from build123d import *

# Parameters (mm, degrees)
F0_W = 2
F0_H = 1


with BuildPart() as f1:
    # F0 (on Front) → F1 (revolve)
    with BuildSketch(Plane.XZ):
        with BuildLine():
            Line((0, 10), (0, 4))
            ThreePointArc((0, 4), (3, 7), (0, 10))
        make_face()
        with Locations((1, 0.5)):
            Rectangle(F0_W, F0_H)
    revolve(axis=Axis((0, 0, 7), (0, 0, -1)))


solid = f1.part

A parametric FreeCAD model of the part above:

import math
import FreeCAD as App
import Part
import Sketcher

V = App.Vector
Q = App.Units.Quantity

doc = App.newDocument("Part")
params = doc.addObject("Spreadsheet::Sheet", "Params")
for row, (alias, value) in enumerate([
    ("sketch1_radius", "3 mm"),
    ("sketch1_width", "2 mm"),
    ("sketch1_height", "1 mm"),
    ("revolution_angle", "360 deg"),
], start=1):
    params.set(f"A{row}", alias)
    params.set(f"B{row}", "=" + value)
    params.setAlias(f"B{row}", alias)

body = doc.addObject("PartDesign::Body", "Body")
body.AllowCompound = True

sketch1 = body.newObject("Sketcher::SketchObject", "Sketch")
sketch1.AttachmentSupport = (doc.getObject("XZ_Plane"), [""])
sketch1.MapMode = "FlatFace"
sketch1.addGeometry(Part.LineSegment(V(0, 10, 0), V(0, 4, 0)), False)
sketch1.addGeometry(Part.ArcOfCircle(Part.Circle(V(0, 7, 0), V(0, 0, 1), 3), math.radians(-90), math.radians(90)), False)
sketch1.addGeometry(Part.LineSegment(V(0, 1, 0), V(0, 0, 0)), False)
sketch1.addGeometry(Part.LineSegment(V(0, 0, 0), V(2, 0, 0)), False)
sketch1.addGeometry(Part.LineSegment(V(2, 0, 0), V(2, 1, 0)), False)
sketch1.addGeometry(Part.LineSegment(V(2, 1, 0), V(0, 1, 0)), False)
sketch1.addConstraint(Sketcher.Constraint("Coincident", 0, 1, 1, 2))
sketch1.addConstraint(Sketcher.Constraint("Coincident", 1, 1, 0, 2))
sketch1.addConstraint(Sketcher.Constraint("Coincident", 2, 2, 3, 1))
sketch1.addConstraint(Sketcher.Constraint("Coincident", 3, 2, 4, 1))
sketch1.addConstraint(Sketcher.Constraint("Coincident", 4, 2, 5, 1))
sketch1.addConstraint(Sketcher.Constraint("Coincident", 5, 2, 2, 1))
sketch1.addConstraint(Sketcher.Constraint("Vertical", 0))
sketch1.addConstraint(Sketcher.Constraint("Vertical", 2))
sketch1.addConstraint(Sketcher.Constraint("Horizontal", 3))
sketch1.addConstraint(Sketcher.Constraint("Vertical", 4))
sketch1.addConstraint(Sketcher.Constraint("Horizontal", 5))
sketch1.addConstraint(Sketcher.Constraint("Coincident", 2, 2, -1, 1))
sketch1.addConstraint(Sketcher.Constraint("PointOnObject", 1, 3, -2))
sketch1.addConstraint(Sketcher.Constraint("PointOnObject", 0, 1, -2))
sketch1.addConstraint(Sketcher.Constraint("Radius", 1, Q("3 mm")))
sketch1.addConstraint(Sketcher.Constraint("DistanceX", 3, 1, 3, 2, Q("2 mm")))
sketch1.addConstraint(Sketcher.Constraint("DistanceY", 2, 2, 2, 1, Q("1 mm")))
sketch1.addConstraint(Sketcher.Constraint("DistanceY", -1, 1, 1, 3, Q("7 mm")))
sketch1.setExpression("Constraints[14]", "Params.sketch1_radius")
sketch1.setExpression("Constraints[15]", "Params.sketch1_width")
sketch1.setExpression("Constraints[16]", "Params.sketch1_height")
revolution = body.newObject("PartDesign::Revolution", "Revolution")
revolution.Profile = sketch1
revolution.ReferenceAxis = (sketch1, ["V_Axis"])
revolution.setExpression("Angle", "Params.revolution_angle")

doc.recompute()
